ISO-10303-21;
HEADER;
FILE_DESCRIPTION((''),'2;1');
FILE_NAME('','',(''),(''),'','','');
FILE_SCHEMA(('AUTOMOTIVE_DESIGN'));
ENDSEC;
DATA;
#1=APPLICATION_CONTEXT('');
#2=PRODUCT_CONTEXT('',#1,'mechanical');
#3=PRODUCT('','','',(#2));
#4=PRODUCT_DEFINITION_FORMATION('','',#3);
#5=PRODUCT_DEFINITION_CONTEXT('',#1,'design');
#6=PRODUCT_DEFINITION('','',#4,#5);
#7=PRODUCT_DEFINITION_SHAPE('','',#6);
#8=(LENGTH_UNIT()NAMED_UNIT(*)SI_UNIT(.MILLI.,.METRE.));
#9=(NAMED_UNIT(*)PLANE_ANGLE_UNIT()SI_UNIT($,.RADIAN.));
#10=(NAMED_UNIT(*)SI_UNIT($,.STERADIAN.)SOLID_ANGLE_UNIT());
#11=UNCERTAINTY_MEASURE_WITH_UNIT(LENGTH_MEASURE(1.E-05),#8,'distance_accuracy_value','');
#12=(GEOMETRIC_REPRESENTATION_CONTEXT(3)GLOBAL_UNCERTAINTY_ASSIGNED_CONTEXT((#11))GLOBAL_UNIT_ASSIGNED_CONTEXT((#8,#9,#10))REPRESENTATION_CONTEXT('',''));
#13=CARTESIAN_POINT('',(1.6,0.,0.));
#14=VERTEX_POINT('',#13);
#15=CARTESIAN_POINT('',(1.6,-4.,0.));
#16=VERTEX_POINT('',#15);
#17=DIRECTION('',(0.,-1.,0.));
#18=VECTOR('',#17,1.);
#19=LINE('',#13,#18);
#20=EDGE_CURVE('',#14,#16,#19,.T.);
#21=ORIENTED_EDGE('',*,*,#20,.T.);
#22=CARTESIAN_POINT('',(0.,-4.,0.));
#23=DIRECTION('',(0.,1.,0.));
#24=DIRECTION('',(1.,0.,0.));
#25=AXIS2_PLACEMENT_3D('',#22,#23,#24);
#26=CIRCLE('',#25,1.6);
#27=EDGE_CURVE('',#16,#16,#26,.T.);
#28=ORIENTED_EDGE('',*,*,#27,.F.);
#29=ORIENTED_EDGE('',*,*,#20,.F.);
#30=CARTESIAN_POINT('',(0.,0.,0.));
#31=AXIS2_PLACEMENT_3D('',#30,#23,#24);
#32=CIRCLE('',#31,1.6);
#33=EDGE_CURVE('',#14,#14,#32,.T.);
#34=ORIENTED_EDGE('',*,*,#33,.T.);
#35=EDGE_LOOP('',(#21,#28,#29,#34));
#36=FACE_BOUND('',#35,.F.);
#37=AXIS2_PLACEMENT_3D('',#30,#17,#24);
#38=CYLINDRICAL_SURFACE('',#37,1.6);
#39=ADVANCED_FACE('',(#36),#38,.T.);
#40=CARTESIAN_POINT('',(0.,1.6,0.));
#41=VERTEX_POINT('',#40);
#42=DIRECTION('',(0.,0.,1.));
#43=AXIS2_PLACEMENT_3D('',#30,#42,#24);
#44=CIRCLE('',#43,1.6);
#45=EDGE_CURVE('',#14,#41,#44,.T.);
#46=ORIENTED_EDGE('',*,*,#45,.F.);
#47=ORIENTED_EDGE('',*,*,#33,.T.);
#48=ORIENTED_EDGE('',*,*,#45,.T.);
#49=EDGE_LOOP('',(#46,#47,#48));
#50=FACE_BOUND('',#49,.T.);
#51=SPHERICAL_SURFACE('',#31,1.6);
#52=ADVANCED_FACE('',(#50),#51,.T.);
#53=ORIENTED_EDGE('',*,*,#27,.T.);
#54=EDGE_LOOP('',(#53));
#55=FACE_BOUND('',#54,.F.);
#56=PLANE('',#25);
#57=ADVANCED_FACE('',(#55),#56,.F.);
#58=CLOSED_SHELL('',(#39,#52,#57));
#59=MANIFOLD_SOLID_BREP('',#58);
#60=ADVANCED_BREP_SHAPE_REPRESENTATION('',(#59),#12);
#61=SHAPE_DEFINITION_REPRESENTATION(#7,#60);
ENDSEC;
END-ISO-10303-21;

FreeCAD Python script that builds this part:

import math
import FreeCAD as App
import Part
import Sketcher
from FreeCAD import Vector
Q = App.Units.Quantity

doc = App.newDocument("Part")
body = doc.addObject("PartDesign::Body", "Body")

# Sketch on XY plane
sketch1 = body.newObject("Sketcher::SketchObject", "Sketch")
sketch1.AttachmentSupport = (doc.getObject("XY_Plane"), [""])
sketch1.MapMode = "FlatFace"
sketch1.addGeometry([
    Part.LineSegment(Vector(0, 1.6, 0), Vector(0, -4, 0)),
    Part.LineSegment(Vector(0, -4, 0), Vector(1.6, -4, 0)),
    Part.LineSegment(Vector(1.6, -4, 0), Vector(1.6, 0, 0)),
    Part.ArcOfCircle(Part.Circle(Vector(0, 0, 0), Vector(0, 0, 1), 1.6), math.radians(0), math.radians(90)),
], False)
sketch1.addConstraint([
    Sketcher.Constraint("Coincident", 0, 2, 1, 1),
    Sketcher.Constraint("Coincident", 1, 2, 2, 1),
    Sketcher.Constraint("Tangent", 2, 2, 3, 1),
    Sketcher.Constraint("Coincident", 3, 2, 0, 1),
    Sketcher.Constraint("Vertical", 0),
    Sketcher.Constraint("Horizontal", 1),
    Sketcher.Constraint("Vertical", 2),
    Sketcher.Constraint("Coincident", 3, 3, -1, 1),
    Sketcher.Constraint("PointOnObject", 0, 2, -2),
    Sketcher.Constraint("Radius", 3, Q("1.6 mm")),
    Sketcher.Constraint("DistanceY", 0, 2, 0, 1, Q("5.6 mm")),
])
revolution = body.newObject("PartDesign::Revolution", "Revolution")
revolution.Profile = sketch1
revolution.ReferenceAxis = (sketch1, ["V_Axis"])
revolution.Angle = 360

doc.recompute()
